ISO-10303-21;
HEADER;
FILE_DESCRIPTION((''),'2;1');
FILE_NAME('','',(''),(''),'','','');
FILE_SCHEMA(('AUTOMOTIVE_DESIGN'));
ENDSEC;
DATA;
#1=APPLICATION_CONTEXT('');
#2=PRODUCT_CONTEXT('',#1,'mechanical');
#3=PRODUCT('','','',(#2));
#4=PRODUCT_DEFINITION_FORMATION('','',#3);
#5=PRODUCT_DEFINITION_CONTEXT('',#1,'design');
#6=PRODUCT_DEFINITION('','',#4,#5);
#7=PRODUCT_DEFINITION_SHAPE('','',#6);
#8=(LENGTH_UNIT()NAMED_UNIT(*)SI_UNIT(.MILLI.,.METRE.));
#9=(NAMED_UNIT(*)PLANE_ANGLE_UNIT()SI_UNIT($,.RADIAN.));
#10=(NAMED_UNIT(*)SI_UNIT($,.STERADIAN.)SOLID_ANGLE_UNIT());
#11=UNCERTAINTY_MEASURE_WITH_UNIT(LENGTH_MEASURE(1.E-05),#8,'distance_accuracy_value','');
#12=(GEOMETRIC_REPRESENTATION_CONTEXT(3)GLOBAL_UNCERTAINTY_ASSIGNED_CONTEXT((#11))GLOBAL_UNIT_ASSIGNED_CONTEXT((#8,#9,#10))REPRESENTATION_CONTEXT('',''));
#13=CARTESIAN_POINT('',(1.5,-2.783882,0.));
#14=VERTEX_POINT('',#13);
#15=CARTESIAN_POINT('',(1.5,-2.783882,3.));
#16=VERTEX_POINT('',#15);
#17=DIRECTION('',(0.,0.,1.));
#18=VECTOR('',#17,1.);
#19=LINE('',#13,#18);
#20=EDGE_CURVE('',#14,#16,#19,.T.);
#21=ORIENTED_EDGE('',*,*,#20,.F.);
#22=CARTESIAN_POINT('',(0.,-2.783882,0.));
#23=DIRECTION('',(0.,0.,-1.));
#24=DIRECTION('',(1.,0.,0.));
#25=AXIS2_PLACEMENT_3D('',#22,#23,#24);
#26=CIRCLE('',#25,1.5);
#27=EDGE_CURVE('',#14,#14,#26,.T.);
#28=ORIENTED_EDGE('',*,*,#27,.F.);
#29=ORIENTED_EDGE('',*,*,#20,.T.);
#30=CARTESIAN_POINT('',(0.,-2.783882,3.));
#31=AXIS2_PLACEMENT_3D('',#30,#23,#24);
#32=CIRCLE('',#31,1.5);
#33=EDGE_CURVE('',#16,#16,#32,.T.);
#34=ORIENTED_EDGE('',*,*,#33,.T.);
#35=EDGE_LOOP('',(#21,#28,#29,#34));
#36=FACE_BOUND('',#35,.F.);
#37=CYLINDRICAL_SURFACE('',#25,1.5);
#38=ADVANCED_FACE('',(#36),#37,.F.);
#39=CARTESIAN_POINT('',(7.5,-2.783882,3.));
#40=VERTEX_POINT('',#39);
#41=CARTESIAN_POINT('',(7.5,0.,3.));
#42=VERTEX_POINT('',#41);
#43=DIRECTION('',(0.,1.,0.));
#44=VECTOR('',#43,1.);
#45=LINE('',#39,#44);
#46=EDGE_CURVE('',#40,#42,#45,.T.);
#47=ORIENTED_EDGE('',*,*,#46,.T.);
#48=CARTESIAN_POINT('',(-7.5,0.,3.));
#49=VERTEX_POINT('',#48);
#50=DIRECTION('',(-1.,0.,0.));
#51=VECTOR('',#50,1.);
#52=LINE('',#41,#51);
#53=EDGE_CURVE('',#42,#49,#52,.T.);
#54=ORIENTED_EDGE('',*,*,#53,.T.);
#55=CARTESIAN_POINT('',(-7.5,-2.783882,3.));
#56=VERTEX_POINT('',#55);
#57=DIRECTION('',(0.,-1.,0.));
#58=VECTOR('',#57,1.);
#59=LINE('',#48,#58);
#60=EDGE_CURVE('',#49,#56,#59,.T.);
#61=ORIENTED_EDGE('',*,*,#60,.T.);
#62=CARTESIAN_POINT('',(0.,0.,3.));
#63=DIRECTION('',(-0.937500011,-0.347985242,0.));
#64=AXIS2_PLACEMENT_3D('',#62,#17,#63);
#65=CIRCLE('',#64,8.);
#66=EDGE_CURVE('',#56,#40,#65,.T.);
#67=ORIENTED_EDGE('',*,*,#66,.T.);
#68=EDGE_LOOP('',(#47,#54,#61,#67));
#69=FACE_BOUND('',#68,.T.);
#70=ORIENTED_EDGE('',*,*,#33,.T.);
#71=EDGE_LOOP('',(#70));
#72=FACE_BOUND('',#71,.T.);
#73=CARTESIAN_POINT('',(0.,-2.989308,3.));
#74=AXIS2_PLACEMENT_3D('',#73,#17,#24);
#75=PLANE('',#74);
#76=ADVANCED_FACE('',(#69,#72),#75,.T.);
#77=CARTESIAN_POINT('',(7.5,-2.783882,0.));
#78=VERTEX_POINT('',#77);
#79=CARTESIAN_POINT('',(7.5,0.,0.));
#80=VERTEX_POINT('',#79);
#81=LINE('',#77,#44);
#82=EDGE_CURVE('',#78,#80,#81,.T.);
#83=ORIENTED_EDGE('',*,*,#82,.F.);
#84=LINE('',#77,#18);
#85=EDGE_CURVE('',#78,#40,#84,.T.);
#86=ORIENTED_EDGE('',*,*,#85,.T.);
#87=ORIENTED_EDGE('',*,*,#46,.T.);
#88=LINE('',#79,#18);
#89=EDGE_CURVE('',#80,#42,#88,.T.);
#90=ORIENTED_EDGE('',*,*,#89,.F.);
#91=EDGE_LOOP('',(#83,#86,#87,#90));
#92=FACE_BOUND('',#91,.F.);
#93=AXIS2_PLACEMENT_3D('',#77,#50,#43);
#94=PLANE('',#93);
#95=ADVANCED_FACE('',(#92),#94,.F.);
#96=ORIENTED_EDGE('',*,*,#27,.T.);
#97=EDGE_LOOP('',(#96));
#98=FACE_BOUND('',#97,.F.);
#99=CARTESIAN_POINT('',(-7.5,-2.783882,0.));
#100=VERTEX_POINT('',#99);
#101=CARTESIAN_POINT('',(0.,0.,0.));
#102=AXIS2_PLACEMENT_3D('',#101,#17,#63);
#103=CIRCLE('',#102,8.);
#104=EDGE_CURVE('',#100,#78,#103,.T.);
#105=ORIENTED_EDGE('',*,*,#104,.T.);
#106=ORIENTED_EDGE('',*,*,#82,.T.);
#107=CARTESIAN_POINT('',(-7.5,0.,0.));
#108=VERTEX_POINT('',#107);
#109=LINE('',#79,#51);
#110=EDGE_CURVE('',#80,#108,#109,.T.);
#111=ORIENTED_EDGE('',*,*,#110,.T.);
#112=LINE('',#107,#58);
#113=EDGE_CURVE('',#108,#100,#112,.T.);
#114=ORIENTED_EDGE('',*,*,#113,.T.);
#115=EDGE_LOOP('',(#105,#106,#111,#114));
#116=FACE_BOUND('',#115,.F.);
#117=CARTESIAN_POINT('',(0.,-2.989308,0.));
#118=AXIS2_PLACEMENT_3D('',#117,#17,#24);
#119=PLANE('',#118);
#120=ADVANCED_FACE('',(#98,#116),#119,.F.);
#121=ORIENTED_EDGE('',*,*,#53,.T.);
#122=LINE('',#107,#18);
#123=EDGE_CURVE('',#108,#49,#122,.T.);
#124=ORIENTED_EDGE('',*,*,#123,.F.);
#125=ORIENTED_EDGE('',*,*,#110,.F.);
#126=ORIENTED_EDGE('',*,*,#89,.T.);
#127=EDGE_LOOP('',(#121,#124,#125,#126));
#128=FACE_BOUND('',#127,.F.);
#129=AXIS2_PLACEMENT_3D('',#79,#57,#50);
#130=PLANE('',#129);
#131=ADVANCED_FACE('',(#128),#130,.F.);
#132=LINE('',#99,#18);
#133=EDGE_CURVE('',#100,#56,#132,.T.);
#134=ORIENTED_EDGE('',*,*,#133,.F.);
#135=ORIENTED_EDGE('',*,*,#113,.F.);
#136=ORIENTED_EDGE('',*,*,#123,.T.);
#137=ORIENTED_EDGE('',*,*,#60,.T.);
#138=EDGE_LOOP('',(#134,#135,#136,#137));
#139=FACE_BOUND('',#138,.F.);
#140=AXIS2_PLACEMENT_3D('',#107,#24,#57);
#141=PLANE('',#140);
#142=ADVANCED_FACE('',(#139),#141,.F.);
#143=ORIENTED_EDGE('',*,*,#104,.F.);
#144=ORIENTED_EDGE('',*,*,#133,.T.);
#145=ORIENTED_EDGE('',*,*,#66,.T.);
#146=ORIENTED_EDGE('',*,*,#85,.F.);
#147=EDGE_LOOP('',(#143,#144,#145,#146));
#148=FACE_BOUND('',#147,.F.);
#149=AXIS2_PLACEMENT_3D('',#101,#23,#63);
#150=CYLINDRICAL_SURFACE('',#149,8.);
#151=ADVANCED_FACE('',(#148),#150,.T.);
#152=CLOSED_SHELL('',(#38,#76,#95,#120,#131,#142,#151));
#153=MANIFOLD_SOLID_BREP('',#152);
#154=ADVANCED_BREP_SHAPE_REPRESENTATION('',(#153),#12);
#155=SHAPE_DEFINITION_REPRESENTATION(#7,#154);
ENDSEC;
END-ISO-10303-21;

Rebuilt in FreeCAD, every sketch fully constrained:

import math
import FreeCAD as App
import Part
import Sketcher
from FreeCAD import Vector

doc = App.newDocument("Part")
body = doc.addObject("PartDesign::Body", "Body")

sketch1 = body.newObject("Sketcher::SketchObject", "Sketch")
sketch1.AttachmentSupport = (doc.getObject("XY_Plane"), [""])
sketch1.MapMode = "FlatFace"
sketch1.addGeometry(Part.LineSegment(Vector(-7.5, 0, 0), Vector(-7.5, -2.783882, 0)), False)
sketch1.addGeometry(Part.ArcOfCircle(Part.Circle(Vector(0, 0, 0), Vector(0, 0, 1), 8), math.radians(-159.635867), math.radians(-20.364133)), False)
sketch1.addGeometry(Part.LineSegment(Vector(7.5, -2.783882, 0), Vector(7.5, 0, 0)), False)
sketch1.addGeometry(Part.LineSegment(Vector(7.5, 0, 0), Vector(-7.5, 0, 0)), False)
sketch1.addConstraint(Sketcher.Constraint("Coincident", 0, 2, 1, 1))
sketch1.addConstraint(Sketcher.Constraint("Coincident", 1, 2, 2, 1))
sketch1.addConstraint(Sketcher.Constraint("Coincident", 2, 2, 3, 1))
sketch1.addConstraint(Sketcher.Constraint("Coincident", 3, 2, 0, 1))
sketch1.addConstraint(Sketcher.Constraint("Vertical", 0))
sketch1.addConstraint(Sketcher.Constraint("Vertical", 2))
sketch1.addConstraint(Sketcher.Constraint("Horizontal", 3))
sketch1.addConstraint(Sketcher.Constraint("Coincident", 1, 3, -1, 1))
sketch1.addConstraint(Sketcher.Constraint("Symmetric", 2, 2, 3, 2, -1, 1))
sketch1.addConstraint(Sketcher.Constraint("Radius", 1, 8.0))
sketch1.addConstraint(Sketcher.Constraint("DistanceX", 3, 2, 3, 1, 15.0))
pad1 = body.newObject("PartDesign::Pad", "Pad")
pad1.Profile = sketch1
pad1.Length = 3

sketch2 = body.newObject("Sketcher::SketchObject", "Sketch001")
sketch2.AttachmentSupport = (doc.getObject("XY_Plane"), [""])
sketch2.MapMode = "FlatFace"
sketch2.addGeometry(Part.Circle(Vector(0, -2.783882, 0), Vector(0, 0, 1), 1.5), False)
sketch2.addConstraint(Sketcher.Constraint("PointOnObject", 0, 3, -2))
sketch2.addConstraint(Sketcher.Constraint("Diameter", 0, 3.0))
sketch2.addConstraint(Sketcher.Constraint("DistanceY", 0, 3, -1, 1, 2.783882))
pocket1 = body.newObject("PartDesign::Pocket", "Pocket")
pocket1.Profile = sketch2
pocket1.Length = 5
pocket1.Reversed = True

doc.recompute()
